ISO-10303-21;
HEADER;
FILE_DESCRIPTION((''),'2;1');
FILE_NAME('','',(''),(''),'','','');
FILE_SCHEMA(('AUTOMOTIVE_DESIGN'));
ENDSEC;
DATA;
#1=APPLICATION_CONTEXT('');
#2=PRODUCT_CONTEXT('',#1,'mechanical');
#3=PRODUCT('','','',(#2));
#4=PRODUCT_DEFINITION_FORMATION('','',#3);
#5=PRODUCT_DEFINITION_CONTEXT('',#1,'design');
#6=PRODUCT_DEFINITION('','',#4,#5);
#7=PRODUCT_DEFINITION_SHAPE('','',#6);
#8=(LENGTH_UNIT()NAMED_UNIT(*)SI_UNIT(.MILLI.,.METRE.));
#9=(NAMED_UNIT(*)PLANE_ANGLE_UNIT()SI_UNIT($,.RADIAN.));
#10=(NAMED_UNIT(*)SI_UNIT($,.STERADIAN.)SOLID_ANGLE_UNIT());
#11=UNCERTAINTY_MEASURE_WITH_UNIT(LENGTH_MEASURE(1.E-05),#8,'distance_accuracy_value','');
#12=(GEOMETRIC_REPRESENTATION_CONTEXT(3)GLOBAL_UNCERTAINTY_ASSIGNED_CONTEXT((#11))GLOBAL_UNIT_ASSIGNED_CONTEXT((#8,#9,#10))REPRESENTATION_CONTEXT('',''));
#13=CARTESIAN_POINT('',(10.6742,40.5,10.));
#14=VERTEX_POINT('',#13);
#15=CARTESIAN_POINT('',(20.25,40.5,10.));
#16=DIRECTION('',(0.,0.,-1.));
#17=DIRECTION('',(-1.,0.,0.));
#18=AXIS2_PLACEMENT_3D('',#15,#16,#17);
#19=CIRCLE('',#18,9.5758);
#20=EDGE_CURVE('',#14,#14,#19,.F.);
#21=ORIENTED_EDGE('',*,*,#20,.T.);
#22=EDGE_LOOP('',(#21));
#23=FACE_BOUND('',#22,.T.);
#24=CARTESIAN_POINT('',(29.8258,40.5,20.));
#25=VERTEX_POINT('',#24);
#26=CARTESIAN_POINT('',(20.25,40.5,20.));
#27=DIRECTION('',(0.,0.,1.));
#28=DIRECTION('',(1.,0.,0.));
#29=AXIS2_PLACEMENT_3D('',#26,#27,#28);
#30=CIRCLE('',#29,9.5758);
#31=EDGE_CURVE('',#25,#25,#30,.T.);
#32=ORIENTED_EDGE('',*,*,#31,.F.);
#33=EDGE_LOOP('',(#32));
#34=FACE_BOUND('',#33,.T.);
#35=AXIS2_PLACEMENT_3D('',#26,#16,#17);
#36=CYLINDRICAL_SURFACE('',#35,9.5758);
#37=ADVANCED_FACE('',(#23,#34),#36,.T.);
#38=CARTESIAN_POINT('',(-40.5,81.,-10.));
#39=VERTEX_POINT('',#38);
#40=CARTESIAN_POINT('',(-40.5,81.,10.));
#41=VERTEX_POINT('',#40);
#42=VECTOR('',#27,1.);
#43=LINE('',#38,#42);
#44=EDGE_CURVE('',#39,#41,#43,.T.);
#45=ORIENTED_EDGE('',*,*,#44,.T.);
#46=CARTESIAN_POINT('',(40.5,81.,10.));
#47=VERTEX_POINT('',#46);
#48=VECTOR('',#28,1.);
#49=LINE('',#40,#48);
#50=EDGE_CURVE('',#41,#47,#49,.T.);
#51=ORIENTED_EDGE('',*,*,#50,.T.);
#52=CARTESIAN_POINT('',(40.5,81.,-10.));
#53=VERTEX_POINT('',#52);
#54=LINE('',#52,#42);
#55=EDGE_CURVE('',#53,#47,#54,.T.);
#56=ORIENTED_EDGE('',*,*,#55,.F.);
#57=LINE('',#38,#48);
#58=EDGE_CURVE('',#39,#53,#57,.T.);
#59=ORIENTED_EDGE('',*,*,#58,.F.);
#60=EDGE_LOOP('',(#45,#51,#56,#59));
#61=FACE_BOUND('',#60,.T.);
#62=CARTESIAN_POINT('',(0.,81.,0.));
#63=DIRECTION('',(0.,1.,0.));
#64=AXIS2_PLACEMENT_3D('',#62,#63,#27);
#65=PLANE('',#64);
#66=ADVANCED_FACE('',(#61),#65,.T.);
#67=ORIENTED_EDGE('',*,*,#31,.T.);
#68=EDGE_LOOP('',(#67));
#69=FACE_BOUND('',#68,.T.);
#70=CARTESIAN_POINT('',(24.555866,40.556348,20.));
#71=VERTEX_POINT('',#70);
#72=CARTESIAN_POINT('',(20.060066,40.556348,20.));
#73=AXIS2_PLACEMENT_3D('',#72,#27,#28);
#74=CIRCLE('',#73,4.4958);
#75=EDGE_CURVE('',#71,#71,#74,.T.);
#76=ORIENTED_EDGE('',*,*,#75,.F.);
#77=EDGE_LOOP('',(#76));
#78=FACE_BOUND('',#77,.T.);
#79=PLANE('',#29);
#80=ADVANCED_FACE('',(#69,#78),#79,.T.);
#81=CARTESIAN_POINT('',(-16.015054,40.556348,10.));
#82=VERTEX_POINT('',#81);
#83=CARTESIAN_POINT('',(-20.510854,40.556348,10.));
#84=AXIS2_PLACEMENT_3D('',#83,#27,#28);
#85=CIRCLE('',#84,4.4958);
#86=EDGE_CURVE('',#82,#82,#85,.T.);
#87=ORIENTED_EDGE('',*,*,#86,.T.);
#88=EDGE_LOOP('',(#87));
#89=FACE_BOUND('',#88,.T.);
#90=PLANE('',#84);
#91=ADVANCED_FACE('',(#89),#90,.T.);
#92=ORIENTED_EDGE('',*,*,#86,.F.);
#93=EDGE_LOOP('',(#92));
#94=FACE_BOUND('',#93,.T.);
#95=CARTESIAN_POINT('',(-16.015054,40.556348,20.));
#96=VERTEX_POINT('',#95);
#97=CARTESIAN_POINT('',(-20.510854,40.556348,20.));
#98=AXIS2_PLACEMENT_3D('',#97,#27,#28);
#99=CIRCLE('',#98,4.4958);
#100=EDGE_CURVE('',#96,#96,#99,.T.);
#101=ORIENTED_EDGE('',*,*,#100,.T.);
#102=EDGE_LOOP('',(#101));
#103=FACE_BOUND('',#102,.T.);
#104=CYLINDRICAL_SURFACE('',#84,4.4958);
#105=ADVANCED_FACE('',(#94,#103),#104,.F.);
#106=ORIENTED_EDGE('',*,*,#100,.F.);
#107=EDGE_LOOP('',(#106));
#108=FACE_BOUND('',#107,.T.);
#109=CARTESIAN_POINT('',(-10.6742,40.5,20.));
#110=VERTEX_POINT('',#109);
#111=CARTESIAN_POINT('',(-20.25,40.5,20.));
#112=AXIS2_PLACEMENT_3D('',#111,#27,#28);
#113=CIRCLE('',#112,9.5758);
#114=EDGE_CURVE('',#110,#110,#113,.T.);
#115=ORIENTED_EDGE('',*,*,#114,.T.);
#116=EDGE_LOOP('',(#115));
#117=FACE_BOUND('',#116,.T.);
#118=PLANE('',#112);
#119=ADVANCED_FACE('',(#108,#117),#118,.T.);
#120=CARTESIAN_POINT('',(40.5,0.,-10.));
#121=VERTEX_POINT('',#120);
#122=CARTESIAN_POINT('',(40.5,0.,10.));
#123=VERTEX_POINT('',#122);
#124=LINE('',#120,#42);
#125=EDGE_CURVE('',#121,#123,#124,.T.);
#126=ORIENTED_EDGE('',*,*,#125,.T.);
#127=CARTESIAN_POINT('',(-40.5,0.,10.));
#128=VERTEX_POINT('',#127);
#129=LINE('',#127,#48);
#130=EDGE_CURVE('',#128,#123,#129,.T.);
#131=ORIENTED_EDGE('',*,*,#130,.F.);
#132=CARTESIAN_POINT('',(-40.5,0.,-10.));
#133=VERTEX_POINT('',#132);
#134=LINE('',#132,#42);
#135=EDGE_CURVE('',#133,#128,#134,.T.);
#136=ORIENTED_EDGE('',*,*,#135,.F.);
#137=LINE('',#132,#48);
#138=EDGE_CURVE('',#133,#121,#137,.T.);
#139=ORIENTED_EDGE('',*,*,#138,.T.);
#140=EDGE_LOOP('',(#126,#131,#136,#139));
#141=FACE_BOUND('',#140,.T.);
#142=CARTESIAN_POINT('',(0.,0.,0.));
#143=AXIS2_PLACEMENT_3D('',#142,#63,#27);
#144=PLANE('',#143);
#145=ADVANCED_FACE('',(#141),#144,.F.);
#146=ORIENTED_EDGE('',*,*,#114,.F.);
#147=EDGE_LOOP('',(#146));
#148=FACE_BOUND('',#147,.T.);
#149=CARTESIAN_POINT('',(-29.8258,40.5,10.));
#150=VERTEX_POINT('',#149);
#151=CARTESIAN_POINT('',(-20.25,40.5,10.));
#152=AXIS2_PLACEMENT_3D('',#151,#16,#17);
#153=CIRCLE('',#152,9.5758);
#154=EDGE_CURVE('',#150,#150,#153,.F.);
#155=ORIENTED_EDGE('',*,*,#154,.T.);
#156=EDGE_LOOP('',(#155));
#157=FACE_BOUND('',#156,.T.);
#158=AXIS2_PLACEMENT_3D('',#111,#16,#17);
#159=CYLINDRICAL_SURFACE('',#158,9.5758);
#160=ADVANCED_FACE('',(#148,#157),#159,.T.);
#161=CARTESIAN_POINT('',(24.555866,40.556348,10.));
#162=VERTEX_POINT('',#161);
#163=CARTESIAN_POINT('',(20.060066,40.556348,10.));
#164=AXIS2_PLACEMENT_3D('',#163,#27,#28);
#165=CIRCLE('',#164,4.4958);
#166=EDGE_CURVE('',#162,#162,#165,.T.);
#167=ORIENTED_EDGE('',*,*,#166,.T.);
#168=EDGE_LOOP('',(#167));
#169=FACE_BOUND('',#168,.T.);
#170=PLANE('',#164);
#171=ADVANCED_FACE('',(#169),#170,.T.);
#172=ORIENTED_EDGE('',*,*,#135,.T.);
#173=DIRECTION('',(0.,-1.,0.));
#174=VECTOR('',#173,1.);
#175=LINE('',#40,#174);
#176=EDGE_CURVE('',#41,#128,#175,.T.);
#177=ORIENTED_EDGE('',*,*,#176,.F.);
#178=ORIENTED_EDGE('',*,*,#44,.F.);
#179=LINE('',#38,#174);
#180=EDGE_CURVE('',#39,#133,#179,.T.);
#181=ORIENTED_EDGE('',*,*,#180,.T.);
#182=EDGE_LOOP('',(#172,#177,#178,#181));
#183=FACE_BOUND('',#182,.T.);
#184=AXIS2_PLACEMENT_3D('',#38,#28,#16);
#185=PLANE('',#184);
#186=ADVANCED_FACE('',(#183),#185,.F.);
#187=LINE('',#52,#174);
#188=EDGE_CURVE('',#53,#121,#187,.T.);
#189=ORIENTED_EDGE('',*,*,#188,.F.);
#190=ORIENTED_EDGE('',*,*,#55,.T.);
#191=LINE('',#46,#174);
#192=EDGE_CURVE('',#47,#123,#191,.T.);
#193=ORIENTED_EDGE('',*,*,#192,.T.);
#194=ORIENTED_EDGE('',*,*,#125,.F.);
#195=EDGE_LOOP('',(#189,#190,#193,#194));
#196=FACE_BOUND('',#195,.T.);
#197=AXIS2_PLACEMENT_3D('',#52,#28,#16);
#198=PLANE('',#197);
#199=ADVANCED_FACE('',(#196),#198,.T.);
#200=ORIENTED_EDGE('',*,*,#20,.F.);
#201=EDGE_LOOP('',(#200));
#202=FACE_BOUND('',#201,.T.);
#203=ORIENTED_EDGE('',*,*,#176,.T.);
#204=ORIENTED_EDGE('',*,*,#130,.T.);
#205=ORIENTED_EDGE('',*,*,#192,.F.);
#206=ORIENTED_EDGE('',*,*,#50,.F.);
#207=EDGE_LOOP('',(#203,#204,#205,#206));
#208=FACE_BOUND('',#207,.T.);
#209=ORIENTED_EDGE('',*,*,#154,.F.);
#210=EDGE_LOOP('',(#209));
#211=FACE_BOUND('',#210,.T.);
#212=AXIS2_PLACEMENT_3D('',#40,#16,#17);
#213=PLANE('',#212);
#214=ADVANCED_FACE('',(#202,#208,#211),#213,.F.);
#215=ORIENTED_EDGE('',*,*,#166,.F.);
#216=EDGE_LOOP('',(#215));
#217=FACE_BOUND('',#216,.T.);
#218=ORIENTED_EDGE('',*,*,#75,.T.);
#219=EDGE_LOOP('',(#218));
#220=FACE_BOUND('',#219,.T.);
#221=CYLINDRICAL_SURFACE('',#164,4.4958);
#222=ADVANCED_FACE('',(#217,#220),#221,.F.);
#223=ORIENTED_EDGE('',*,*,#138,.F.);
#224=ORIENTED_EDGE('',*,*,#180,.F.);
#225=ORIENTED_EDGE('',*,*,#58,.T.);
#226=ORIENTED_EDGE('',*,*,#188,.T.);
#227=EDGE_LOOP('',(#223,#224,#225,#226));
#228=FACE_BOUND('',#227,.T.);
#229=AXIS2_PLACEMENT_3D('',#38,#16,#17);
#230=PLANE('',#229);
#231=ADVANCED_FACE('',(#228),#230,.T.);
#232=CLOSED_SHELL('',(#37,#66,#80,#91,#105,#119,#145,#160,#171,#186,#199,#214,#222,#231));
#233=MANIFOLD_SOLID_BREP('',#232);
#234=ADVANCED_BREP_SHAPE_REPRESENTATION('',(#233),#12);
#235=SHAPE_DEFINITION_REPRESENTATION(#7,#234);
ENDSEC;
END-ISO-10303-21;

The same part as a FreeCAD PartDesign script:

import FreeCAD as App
import Part
import Sketcher
from FreeCAD import Vector


def add_polygon(sketch, points):
    """Adds a closed chain of lines whose ends are joined by coincident constraints."""
    first, n = sketch.GeometryCount, len(points)
    for a, b in zip(points, points[1:] + points[:1]):
        sketch.addGeometry(Part.LineSegment(App.Vector(*a, 0), App.Vector(*b, 0)), False)
    for i in range(n):
        sketch.addConstraint(Sketcher.Constraint("Coincident", first + i, 2, first + (i + 1) % n, 1))

doc = App.newDocument("Part")
body = doc.addObject("PartDesign::Body", "Body")

# Sketch on XZ plane
sketch1 = body.newObject("Sketcher::SketchObject", "Sketch")
sketch1.AttachmentSupport = (doc.getObject("XZ_Plane"), [""])
sketch1.MapMode = "FlatFace"
add_polygon(sketch1, [(-40, -10), (-40, 10), (40, 10), (40, -10)])  # lines 0-3
sketch1.addConstraint(Sketcher.Constraint("Vertical", 0))
sketch1.addConstraint(Sketcher.Constraint("Horizontal", 1))
sketch1.addConstraint(Sketcher.Constraint("Vertical", 2))
sketch1.addConstraint(Sketcher.Constraint("Horizontal", 3))
sketch1.addConstraint(Sketcher.Constraint("Symmetric", 0, 2, 2, 2, -1, 1))
sketch1.addConstraint(Sketcher.Constraint("DistanceX", 1, 1, 1, 2, 81.0))
sketch1.addConstraint(Sketcher.Constraint("DistanceY", 0, 1, 0, 2, 20.0))
pad1 = body.newObject("PartDesign::Pad", "Pad")
pad1.Profile = sketch1
pad1.Length = 81
pad1.Reversed = True

# Sketch on XY plane
sketch2 = body.newObject("Sketcher::SketchObject", "Sketch001")
sketch2.AttachmentSupport = (doc.getObject("XY_Plane"), [""])
sketch2.MapMode = "FlatFace"
sketch2.AttachmentOffset = App.Placement(Vector(0, 0, 10), App.Rotation())
sketch2.addGeometry(Part.Circle(Vector(-20, 40, 0), Vector(0, 0, 1), 10), False)
sketch2.addGeometry(Part.Circle(Vector(20, 40, 0), Vector(0, 0, 1), 10), False)
sketch2.addConstraint(Sketcher.Constraint("Equal", 0, 1))
sketch2.addConstraint(Sketcher.Constraint("Symmetric", 0, 3, 1, 3, -2))
sketch2.addConstraint(Sketcher.Constraint("Diameter", 0, 19.1516))
sketch2.addConstraint(Sketcher.Constraint("DistanceY", -1, 1, 0, 3, 40.5))
sketch2.addConstraint(Sketcher.Constraint("DistanceX", 0, 3, 1, 3, 40.5))
pad2 = body.newObject("PartDesign::Pad", "Pad001")
pad2.Profile = sketch2
pad2.Length = 10

# Sketch on XY plane
sketch3 = body.newObject("Sketcher::SketchObject", "Sketch002")
sketch3.AttachmentSupport = (doc.getObject("XY_Plane"), [""])
sketch3.MapMode = "FlatFace"
sketch3.AttachmentOffset = App.Placement(Vector(0, 0, 20), App.Rotation())
sketch3.addGeometry(Part.Circle(Vector(-20.5, 40.6, 0), Vector(0, 0, 1), 4.5), False)
sketch3.addGeometry(Part.Circle(Vector(20.1, 40.6, 0), Vector(0, 0, 1), 4.5), False)
sketch3.addConstraint(Sketcher.Constraint("Equal", 0, 1))
sketch3.addConstraint(Sketcher.Constraint("Horizontal", 0, 3, 1, 3))
sketch3.addConstraint(Sketcher.Constraint("Diameter", 0, 8.9916))
sketch3.addConstraint(Sketcher.Constraint("DistanceY", -1, 1, 0, 3, 40.556348))
sketch3.addConstraint(Sketcher.Constraint("DistanceX", 0, 3, 1, 3, 40.57092))
sketch3.addConstraint(Sketcher.Constraint("DistanceX", 0, 3, -1, 1, 20.510854))
pocket1 = body.newObject("PartDesign::Pocket", "Pocket")
pocket1.Profile = sketch3
pocket1.Length = 10

doc.recompute()
